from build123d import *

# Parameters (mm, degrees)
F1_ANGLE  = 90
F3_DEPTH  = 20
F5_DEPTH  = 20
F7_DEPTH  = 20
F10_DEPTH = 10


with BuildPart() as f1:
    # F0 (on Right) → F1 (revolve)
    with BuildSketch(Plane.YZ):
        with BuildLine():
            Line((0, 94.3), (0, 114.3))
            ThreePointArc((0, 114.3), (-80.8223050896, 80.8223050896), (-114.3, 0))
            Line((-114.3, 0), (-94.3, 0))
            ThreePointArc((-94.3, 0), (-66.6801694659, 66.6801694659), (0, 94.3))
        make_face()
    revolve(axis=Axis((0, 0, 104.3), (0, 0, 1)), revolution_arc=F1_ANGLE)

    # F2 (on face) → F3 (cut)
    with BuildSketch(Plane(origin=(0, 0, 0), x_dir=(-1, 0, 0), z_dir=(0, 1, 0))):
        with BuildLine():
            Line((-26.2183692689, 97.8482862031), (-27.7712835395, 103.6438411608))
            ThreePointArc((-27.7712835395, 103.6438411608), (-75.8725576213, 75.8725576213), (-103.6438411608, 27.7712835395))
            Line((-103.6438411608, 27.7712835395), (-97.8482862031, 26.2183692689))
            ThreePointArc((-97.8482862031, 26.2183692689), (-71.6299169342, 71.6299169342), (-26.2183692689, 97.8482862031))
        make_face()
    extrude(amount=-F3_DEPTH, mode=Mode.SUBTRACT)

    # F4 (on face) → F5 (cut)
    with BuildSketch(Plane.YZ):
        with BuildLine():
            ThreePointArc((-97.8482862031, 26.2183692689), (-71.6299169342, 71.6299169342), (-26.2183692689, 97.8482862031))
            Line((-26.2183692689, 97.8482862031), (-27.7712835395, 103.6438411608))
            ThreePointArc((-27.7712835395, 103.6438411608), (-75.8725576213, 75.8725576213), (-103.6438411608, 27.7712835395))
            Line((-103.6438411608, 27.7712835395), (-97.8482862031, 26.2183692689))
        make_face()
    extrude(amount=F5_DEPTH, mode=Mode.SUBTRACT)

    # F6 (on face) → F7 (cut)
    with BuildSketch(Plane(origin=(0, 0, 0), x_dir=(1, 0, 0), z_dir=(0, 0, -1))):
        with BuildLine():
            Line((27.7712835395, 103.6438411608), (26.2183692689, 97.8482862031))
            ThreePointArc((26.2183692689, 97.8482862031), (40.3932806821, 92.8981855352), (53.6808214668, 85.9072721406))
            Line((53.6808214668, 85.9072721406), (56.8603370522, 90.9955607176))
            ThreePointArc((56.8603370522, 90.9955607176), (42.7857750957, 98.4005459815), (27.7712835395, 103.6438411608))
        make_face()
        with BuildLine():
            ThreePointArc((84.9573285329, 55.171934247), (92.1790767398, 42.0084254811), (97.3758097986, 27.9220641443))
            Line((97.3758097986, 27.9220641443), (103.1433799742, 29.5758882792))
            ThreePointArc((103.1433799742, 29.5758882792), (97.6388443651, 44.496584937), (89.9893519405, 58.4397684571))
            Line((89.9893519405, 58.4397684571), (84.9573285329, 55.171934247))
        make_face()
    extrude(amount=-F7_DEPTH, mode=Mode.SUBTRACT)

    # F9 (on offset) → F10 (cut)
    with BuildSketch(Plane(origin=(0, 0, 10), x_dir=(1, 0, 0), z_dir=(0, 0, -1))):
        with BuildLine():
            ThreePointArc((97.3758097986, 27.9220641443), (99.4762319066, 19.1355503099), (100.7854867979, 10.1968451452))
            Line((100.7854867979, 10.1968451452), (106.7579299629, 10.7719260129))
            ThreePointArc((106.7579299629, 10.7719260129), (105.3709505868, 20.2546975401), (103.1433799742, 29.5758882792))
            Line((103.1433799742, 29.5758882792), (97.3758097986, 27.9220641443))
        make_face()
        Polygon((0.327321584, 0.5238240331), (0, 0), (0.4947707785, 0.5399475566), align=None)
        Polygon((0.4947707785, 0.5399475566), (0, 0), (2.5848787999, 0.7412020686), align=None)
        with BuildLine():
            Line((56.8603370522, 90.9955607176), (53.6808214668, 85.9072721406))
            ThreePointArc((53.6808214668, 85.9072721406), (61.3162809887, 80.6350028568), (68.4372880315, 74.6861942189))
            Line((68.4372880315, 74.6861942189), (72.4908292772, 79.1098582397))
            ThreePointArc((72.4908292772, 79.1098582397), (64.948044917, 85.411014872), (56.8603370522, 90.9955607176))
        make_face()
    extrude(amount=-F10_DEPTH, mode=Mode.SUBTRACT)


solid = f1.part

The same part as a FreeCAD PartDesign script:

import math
import FreeCAD as App
import Part
import Sketcher

V = App.Vector
Q = App.Units.Quantity

doc = App.newDocument("Part")
body = doc.addObject("PartDesign::Body", "Body")

sketch1 = body.newObject("Sketcher::SketchObject", "Sketch")
sketch1.AttachmentSupport = (doc.getObject("YZ_Plane"), [""])
sketch1.MapMode = "FlatFace"
sketch1.addGeometry([
    Part.LineSegment(V(0, 94, 0), V(0, 114, 0)),
    Part.ArcOfCircle(Part.Circle(V(0, 0, 0), V(0, 0, 1), 114), math.radians(90), math.radians(180)),
    Part.LineSegment(V(-114, 0, 0), V(-94, 0, 0)),
    Part.ArcOfCircle(Part.Circle(V(0, 0, 0), V(0, 0, 1), 94), math.radians(90), math.radians(180)),
], False)
sketch1.addConstraint([
    Sketcher.Constraint("Coincident", 0, 2, 1, 1),
    Sketcher.Constraint("Coincident", 1, 2, 2, 1),
    Sketcher.Constraint("Coincident", 2, 2, 3, 2),
    Sketcher.Constraint("Coincident", 3, 1, 0, 1),
    Sketcher.Constraint("Vertical", 0),
    Sketcher.Constraint("Horizontal", 2),
    Sketcher.Constraint("Coincident", 1, 3, -1, 1),
    Sketcher.Constraint("Coincident", 3, 3, -1, 1),
    Sketcher.Constraint("PointOnObject", 0, 2, -2),
    Sketcher.Constraint("PointOnObject", 1, 2, -1),
    Sketcher.Constraint("Radius", 1, Q("114.3 mm")),
    Sketcher.Constraint("Radius", 3, Q("94.3 mm")),
])
revolution = body.newObject("PartDesign::Revolution", "Revolution")
revolution.Profile = sketch1
revolution.ReferenceAxis = (sketch1, ["V_Axis"])
revolution.Angle = 90

sketch2 = body.newObject("Sketcher::SketchObject", "Sketch001")
sketch2.AttachmentSupport = (doc.getObject("XZ_Plane"), [""])
sketch2.MapMode = "FlatFace"
sketch2.addGeometry([
    Part.LineSegment(V(26, 98, 0), V(28, 104, 0)),
    Part.ArcOfCircle(Part.Circle(V(0, 0, 0), V(0, 0, 1), 107), math.radians(15), math.radians(75)),
    Part.LineSegment(V(104, 28, 0), V(98, 26, 0)),
    Part.ArcOfCircle(Part.Circle(V(0, 0, 0), V(0, 0, 1), 101), math.radians(15), math.radians(75)),
], False)
sketch2.addConstraint([
    Sketcher.Constraint("Coincident", 0, 2, 1, 2),
    Sketcher.Constraint("Coincident", 1, 1, 2, 1),
    Sketcher.Constraint("Coincident", 2, 2, 3, 1),
    Sketcher.Constraint("Coincident", 3, 2, 0, 1),
    Sketcher.Constraint("Coincident", 1, 3, -1, 1),
    Sketcher.Constraint("Coincident", 3, 3, -1, 1),
    Sketcher.Constraint("Radius", 1, Q("107.3 mm")),
    Sketcher.Constraint("Radius", 3, Q("101.3 mm")),
    Sketcher.Constraint("Angle", 0, Q("75 deg")),
    Sketcher.Constraint("Angle", 2, Q("-165 deg")),
    Sketcher.Constraint("DistanceY", -1, 1, 0, 2, Q("103.643841 mm")),
    Sketcher.Constraint("DistanceX", -1, 1, 1, 1, Q("103.643841 mm")),
])
pocket1 = body.newObject("PartDesign::Pocket", "Pocket")
pocket1.Profile = sketch2
pocket1.Length = 20
pocket1.Reversed = True

sketch3 = body.newObject("Sketcher::SketchObject", "Sketch002")
sketch3.AttachmentSupport = (doc.getObject("YZ_Plane"), [""])
sketch3.MapMode = "FlatFace"
sketch3.addGeometry([
    Part.ArcOfCircle(Part.Circle(V(0, 0, 0), V(0, 0, 1), 101), math.radians(105), math.radians(165)),
    Part.LineSegment(V(-26, 98, 0), V(-28, 104, 0)),
    Part.ArcOfCircle(Part.Circle(V(0, 0, 0), V(0, 0, 1), 107), math.radians(105), math.radians(165)),
    Part.LineSegment(V(-104, 28, 0), V(-98, 26, 0)),
], False)
sketch3.addConstraint([
    Sketcher.Constraint("Coincident", 0, 1, 1, 1),
    Sketcher.Constraint("Coincident", 1, 2, 2, 1),
    Sketcher.Constraint("Coincident", 2, 2, 3, 1),
    Sketcher.Constraint("Coincident", 3, 2, 0, 2),
    Sketcher.Constraint("Coincident", 0, 3, -1, 1),
    Sketcher.Constraint("Coincident", 2, 3, -1, 1),
    Sketcher.Constraint("Radius", 0, Q("101.3 mm")),
    Sketcher.Constraint("Radius", 2, Q("107.3 mm")),
    Sketcher.Constraint("Angle", 1, Q("105 deg")),
    Sketcher.Constraint("Angle", 3, Q("-15 deg")),
    Sketcher.Constraint("DistanceX", 0, 1, -1, 1, Q("26.218369 mm")),
    Sketcher.Constraint("DistanceX", 2, 2, -1, 1, Q("103.643841 mm")),
])
pocket2 = body.newObject("PartDesign::Pocket", "Pocket001")
pocket2.Profile = sketch3
pocket2.Length = 20
pocket2.Reversed = True

sketch4 = body.newObject("Sketcher::SketchObject", "Sketch003")
sketch4.AttachmentSupport = (doc.getObject("XY_Plane"), [""])
sketch4.MapMode = "FlatFace"
sketch4.addGeometry([
    Part.LineSegment(V(28, -104, 0), V(26, -98, 0)),
    Part.ArcOfCircle(Part.Circle(V(0, 0, 0), V(0, 0, 1), 101), math.radians(-75), math.radians(-58)),
    Part.LineSegment(V(54, -86, 0), V(57, -91, 0)),
    Part.ArcOfCircle(Part.Circle(V(0, 0, 0), V(0, 0, 1), 107), math.radians(-75), math.radians(-58)),
    Part.ArcOfCircle(Part.Circle(V(0, 0, 0), V(0, 0, 1), 101), math.radians(-33), math.radians(-16)),
    Part.LineSegment(V(97, -28, 0), V(103, -30, 0)),
    Part.ArcOfCircle(Part.Circle(V(0, 0, 0), V(0, 0, 1), 107), math.radians(-33), math.radians(-16)),
    Part.LineSegment(V(90, -58, 0), V(85, -55, 0)),
], False)
sketch4.addConstraint([
    Sketcher.Constraint("Coincident", 0, 2, 1, 1),
    Sketcher.Constraint("Coincident", 1, 2, 2, 1),
    Sketcher.Constraint("Coincident", 2, 2, 3, 2),
    Sketcher.Constraint("Coincident", 3, 1, 0, 1),
    Sketcher.Constraint("Coincident", 4, 2, 5, 1),
    Sketcher.Constraint("Coincident", 5, 2, 6, 2),
    Sketcher.Constraint("Coincident", 6, 1, 7, 1),
    Sketcher.Constraint("Coincident", 7, 2, 4, 1),
    Sketcher.Constraint("Coincident", 1, 3, -1, 1),
    Sketcher.Constraint("Coincident", 3, 3, -1, 1),
    Sketcher.Constraint("Coincident", 4, 3, -1, 1),
    Sketcher.Constraint("Coincident", 6, 3, -1, 1),
    Sketcher.Constraint("Equal", 1, 4),
    Sketcher.Constraint("Equal", 3, 6),
    Sketcher.Constraint("Radius", 1, Q("101.3 mm")),
    Sketcher.Constraint("Radius", 3, Q("107.3 mm")),
    Sketcher.Constraint("Angle", 0, Q("105 deg")),
    Sketcher.Constraint("Angle", 2, Q("-58 deg")),
    Sketcher.Constraint("Angle", 5, Q("-16 deg")),
    Sketcher.Constraint("Angle", 7, Q("147 deg")),
    Sketcher.Constraint("DistanceX", -1, 1, 0, 2, Q("26.218369 mm")),
    Sketcher.Constraint("DistanceX", -1, 1, 1, 2, Q("53.680821 mm")),
    Sketcher.Constraint("DistanceX", -1, 1, 4, 2, Q("97.37581 mm")),
    Sketcher.Constraint("DistanceX", -1, 1, 6, 1, Q("89.989352 mm")),
])
pocket3 = body.newObject("PartDesign::Pocket", "Pocket002")
pocket3.Profile = sketch4
pocket3.Length = 20
pocket3.Reversed = True

sketch5 = body.newObject("Sketcher::SketchObject", "Sketch004")
sketch5.AttachmentSupport = (doc.getObject("XY_Plane"), [""])
sketch5.MapMode = "FlatFace"
sketch5.AttachmentOffset = App.Placement(V(0, 0, 10), App.Rotation())
sketch5.addGeometry([
    Part.ArcOfCircle(Part.Circle(V(0, 0, 0), V(0, 0, 1), 101.3), math.radians(-16), math.radians(-5.78)),
    Part.LineSegment(V(100.79, -10.2, 0), V(106.76, -10.77, 0)),
    Part.ArcOfCircle(Part.Circle(V(0, 0, 0), V(0, 0, 1), 107.3), math.radians(-16), math.radians(-5.76)),
    Part.LineSegment(V(103.14, -29.58, 0), V(97.38, -27.92, 0)),
    Part.LineSegment(V(0.33, -0.52, 0), V(0, 0, 0)),
    Part.LineSegment(V(0, 0, 0), V(2.58, -0.74, 0)),
    Part.LineSegment(V(2.58, -0.74, 0), V(0.49, -0.54, 0)),
    Part.LineSegment(V(0.49, -0.54, 0), V(0.33, -0.52, 0)),
    Part.LineSegment(V(56.86, -91, 0), V(53.68, -85.91, 0)),
    Part.ArcOfCircle(Part.Circle(V(0, 0, 0), V(0, 0, 1), 101.3), math.radians(-58), math.radians(-47.5)),
    Part.LineSegment(V(68.44, -74.69, 0), V(72.49, -79.11, 0)),
    Part.ArcOfCircle(Part.Circle(V(0, 0, 0), V(0, 0, 1), 107.3), math.radians(-58), math.radians(-47.5)),
], False)
sketch5.addConstraint([
    Sketcher.Constraint("Coincident", 0, 2, 1, 1),
    Sketcher.Constraint("Coincident", 1, 2, 2, 2),
    Sketcher.Constraint("Coincident", 2, 1, 3, 1),
    Sketcher.Constraint("Coincident", 3, 2, 0, 1),
    Sketcher.Constraint("Coincident", 4, 2, 5, 1),
    Sketcher.Constraint("Coincident", 5, 2, 6, 1),
    Sketcher.Constraint("Coincident", 6, 2, 7, 1),
    Sketcher.Constraint("Coincident", 7, 2, 4, 1),
    Sketcher.Constraint("Coincident", 8, 2, 9, 1),
    Sketcher.Constraint("Coincident", 9, 2, 10, 1),
    Sketcher.Constraint("Coincident", 10, 2, 11, 2),
    Sketcher.Constraint("Coincident", 11, 1, 8, 1),
    Sketcher.Constraint("Coincident", 0, 3, -1, 1),
    Sketcher.Constraint("Coincident", 2, 3, -1, 1),
    Sketcher.Constraint("Coincident", 9, 3, -1, 1),
    Sketcher.Constraint("Coincident", 11, 3, -1, 1),
    Sketcher.Constraint("Coincident", 4, 2, -1, 1),
    Sketcher.Constraint("Equal", 0, 9),
    Sketcher.Constraint("Equal", 2, 11),
    Sketcher.Constraint("Parallel", 3, 5),
    Sketcher.Constraint("Parallel", 1, 6),
    Sketcher.Constraint("Parallel", 6, 7),
    Sketcher.Constraint("Parallel", 4, 8),
    Sketcher.Constraint("Radius", 0, Q("101.3 mm")),
    Sketcher.Constraint("Radius", 2, Q("107.3 mm")),
    Sketcher.Constraint("Angle", 3, Q("164 deg")),
    Sketcher.Constraint("Angle", 4, Q("122 deg")),
    Sketcher.Constraint("Angle", 1, Q("-5.5 deg")),
    Sketcher.Constraint("Angle", 10, Q("-47.5 deg")),
    Sketcher.Constraint("DistanceX", 9, 2, 0, 2, Q("32.348199 mm")),
    Sketcher.Constraint("Distance", 4, Q("0.617682 mm")),
    Sketcher.Constraint("DistanceX", -1, 1, 1, 2, Q("106.75793 mm")),
    Sketcher.Constraint("DistanceX", -1, 1, 2, 1, Q("103.14338 mm")),
    Sketcher.Constraint("DistanceX", -1, 1, 6, 2, Q("0.494771 mm")),
    Sketcher.Constraint("DistanceX", -1, 1, 8, 2, Q("53.680821 mm")),
])
pocket4 = body.newObject("PartDesign::Pocket", "Pocket003")
pocket4.Profile = sketch5
pocket4.Length = 10
pocket4.Reversed = True

doc.recompute()
